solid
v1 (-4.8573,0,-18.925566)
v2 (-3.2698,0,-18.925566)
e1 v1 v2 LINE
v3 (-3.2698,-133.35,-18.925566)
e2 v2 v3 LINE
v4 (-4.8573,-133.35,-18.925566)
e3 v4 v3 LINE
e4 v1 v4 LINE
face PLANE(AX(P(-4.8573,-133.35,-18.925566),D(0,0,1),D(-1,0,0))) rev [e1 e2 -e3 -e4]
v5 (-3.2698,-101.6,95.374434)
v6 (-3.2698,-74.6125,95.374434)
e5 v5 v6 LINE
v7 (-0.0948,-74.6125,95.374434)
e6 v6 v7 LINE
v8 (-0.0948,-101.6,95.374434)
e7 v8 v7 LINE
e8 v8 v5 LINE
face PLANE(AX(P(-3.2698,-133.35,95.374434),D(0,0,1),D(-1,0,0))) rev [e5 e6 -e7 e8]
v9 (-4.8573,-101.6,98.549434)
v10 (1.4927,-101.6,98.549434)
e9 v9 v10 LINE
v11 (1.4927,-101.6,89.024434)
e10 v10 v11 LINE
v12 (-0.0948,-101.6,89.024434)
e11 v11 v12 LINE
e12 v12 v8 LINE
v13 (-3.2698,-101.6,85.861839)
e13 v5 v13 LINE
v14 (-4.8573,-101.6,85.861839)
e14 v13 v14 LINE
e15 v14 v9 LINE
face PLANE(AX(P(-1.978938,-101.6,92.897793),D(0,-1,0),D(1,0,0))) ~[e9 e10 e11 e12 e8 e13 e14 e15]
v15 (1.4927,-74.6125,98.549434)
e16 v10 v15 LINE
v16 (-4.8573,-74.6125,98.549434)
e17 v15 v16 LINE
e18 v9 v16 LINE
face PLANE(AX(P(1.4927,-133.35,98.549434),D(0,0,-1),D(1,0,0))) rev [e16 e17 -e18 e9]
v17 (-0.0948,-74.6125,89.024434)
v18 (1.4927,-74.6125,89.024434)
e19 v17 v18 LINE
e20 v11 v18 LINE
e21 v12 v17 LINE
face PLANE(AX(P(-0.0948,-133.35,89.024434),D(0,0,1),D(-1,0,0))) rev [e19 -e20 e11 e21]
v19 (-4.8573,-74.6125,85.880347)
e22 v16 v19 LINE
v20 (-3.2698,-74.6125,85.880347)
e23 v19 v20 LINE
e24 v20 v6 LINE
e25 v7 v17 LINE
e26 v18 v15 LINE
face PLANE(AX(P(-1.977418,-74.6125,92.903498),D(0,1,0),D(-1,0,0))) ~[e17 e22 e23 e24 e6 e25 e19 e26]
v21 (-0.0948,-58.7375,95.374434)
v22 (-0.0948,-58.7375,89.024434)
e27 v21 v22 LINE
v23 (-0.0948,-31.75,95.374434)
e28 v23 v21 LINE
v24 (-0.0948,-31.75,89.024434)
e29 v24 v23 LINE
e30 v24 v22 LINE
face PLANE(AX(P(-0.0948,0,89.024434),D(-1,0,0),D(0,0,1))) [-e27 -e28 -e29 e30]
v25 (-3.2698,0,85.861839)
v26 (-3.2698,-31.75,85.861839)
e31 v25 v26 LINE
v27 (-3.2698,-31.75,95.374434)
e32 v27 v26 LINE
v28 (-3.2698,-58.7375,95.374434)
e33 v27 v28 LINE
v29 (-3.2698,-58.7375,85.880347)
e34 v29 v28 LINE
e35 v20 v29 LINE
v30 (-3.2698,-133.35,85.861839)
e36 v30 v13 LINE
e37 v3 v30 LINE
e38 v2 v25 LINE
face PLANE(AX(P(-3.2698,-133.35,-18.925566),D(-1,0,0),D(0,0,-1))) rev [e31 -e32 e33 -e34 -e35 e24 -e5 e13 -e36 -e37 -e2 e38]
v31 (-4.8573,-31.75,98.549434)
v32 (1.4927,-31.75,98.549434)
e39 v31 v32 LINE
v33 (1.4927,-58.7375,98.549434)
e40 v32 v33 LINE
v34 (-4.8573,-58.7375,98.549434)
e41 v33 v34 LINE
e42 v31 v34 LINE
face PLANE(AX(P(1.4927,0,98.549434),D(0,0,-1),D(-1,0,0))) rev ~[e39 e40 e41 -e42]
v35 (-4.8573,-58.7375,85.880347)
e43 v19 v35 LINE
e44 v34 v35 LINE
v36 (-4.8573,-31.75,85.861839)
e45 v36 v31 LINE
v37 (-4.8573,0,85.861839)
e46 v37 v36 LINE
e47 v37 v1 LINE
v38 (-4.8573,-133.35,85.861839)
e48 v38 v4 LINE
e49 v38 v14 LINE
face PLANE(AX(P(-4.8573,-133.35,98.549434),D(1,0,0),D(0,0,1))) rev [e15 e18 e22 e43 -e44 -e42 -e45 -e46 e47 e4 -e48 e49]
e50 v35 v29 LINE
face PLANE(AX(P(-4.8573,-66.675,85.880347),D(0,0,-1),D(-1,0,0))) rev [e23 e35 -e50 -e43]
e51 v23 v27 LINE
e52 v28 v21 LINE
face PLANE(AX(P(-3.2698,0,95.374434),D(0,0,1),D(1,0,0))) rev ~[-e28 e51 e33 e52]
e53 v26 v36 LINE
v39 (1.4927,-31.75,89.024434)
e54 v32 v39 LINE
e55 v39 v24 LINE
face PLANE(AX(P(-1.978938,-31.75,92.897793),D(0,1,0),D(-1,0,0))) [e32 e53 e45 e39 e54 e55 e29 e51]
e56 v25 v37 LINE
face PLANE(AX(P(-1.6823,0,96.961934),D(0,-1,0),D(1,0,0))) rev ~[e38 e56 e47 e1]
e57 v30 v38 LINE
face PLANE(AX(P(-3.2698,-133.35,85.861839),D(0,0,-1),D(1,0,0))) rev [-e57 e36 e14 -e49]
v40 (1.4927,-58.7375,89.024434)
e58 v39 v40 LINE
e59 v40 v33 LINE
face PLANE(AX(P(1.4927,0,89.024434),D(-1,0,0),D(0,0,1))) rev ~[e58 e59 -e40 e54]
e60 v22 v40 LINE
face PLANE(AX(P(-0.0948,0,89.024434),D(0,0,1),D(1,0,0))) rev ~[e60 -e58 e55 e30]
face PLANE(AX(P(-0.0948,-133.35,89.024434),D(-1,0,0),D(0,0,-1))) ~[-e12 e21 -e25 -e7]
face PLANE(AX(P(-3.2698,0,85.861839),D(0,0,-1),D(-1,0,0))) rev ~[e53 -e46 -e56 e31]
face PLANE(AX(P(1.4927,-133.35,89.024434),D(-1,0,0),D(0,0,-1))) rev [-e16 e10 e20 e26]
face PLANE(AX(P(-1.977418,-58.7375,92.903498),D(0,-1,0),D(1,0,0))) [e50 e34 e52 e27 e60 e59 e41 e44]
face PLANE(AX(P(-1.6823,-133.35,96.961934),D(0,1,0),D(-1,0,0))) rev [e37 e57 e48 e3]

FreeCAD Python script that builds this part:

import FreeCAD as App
import Part
import Sketcher

V = App.Vector
Q = App.Units.Quantity


def add_polygon(sketch, points):
    """Adds a closed chain of lines whose ends are joined by coincident constraints."""
    first, n = sketch.GeometryCount, len(points)
    for a, b in zip(points, points[1:] + points[:1]):
        sketch.addGeometry(Part.LineSegment(App.Vector(*a, 0), App.Vector(*b, 0)), False)
    for i in range(n):
        sketch.addConstraint(Sketcher.Constraint("Coincident", first + i, 2, first + (i + 1) % n, 1))

doc = App.newDocument("Part")
params = doc.addObject("Spreadsheet::Sheet", "Params")
for row, (alias, value) in enumerate([
    ("sketch1_height", "4.5 in"),
    ("sketch1_width", "0.25 in"),
    ("sketch1_width2", "0.0625 in"),
    ("sketch1_height2", "4.625 in"),
    ("pad1_length", "2.625 in"),
    ("sketch2_width", "0.25 in"),
    ("sketch2_width2", "0.0625 in"),
    ("sketch2_height", "0.375 in"),
    ("pocket1_length", "0.3125 in"),
    ("sketch3_width", "0.25 in"),
    ("sketch3_width2", "0.0625 in"),
    ("sketch3_height", "0.375 in"),
    ("pocket2_length", "1.25 in"),
], start=1):
    params.set(f"A{row}", alias)
    params.set(f"B{row}", "=" + value)
    params.setAlias(f"B{row}", alias)

body = doc.addObject("PartDesign::Body", "Body")

sketch1 = body.newObject("Sketcher::SketchObject", "Sketch")
sketch1.AttachmentSupport = (doc.getObject("XZ_Plane"), [""])
sketch1.MapMode = "FlatFace"
add_polygon(sketch1, [(-4.9, 98.5), (-4.9, -18.9), (-3.3, -18.9), (-3.3, 95.4), (-0.1, 95.4), (-0.1, 89), (1.5, 89), (1.5, 98.5)])
sketch1.addConstraint(Sketcher.Constraint("Vertical", 0))
sketch1.addConstraint(Sketcher.Constraint("Horizontal", 1))
sketch1.addConstraint(Sketcher.Constraint("Vertical", 2))
sketch1.addConstraint(Sketcher.Constraint("Horizontal", 3))
sketch1.addConstraint(Sketcher.Constraint("Vertical", 4))
sketch1.addConstraint(Sketcher.Constraint("Horizontal", 5))
sketch1.addConstraint(Sketcher.Constraint("Vertical", 6))
sketch1.addConstraint(Sketcher.Constraint("Horizontal", 7))
sketch1.addConstraint(Sketcher.Constraint("Equal", 1, 5))
sketch1.addConstraint(Sketcher.Constraint("Equal", 7, 4))
sketch1.addConstraint(Sketcher.Constraint("DistanceY", 2, 1, 2, 2, Q("4.5 in")))
sketch1.addConstraint(Sketcher.Constraint("DistanceX", 7, 2, 7, 1, Q("0.25 in")))
sketch1.addConstraint(Sketcher.Constraint("DistanceX", 1, 1, 1, 2, Q("0.0625 in")))
sketch1.addConstraint(Sketcher.Constraint("DistanceY", 0, 2, 0, 1, Q("4.625 in")))
sketch1.addConstraint(Sketcher.Constraint("DistanceX", 0, 2, -1, 1, Q("4.8573 mm")))
sketch1.addConstraint(Sketcher.Constraint("DistanceY", 0, 2, -1, 1, Q("18.925566 mm")))
sketch1.setExpression("Constraints[18]", "Params.sketch1_height")
sketch1.setExpression("Constraints[19]", "Params.sketch1_width")
sketch1.setExpression("Constraints[20]", "Params.sketch1_width2")
sketch1.setExpression("Constraints[21]", "Params.sketch1_height2")
pad1 = body.newObject("PartDesign::Pad", "Pad")
pad1.Profile = sketch1
pad1.setExpression("Length", "Params.pad1_length")

sketch2 = body.newObject("Sketcher::SketchObject", "Sketch001")
sketch2.AttachmentSupport = (doc.getObject("XZ_Plane"), [""])
sketch2.MapMode = "FlatFace"
sketch2.AttachmentOffset = App.Placement(V(0, 0, 2.625 * 25.4), App.Rotation())
add_polygon(sketch2, [(-4.9, 98.5), (-4.9, 85.9), (-3.3, 85.9), (-3.3, 95.4), (-0.1, 95.4), (-0.1, 89), (1.5, 89), (1.5, 98.5)])
sketch2.addConstraint(Sketcher.Constraint("Vertical", 0))
sketch2.addConstraint(Sketcher.Constraint("Horizontal", 1))
sketch2.addConstraint(Sketcher.Constraint("Vertical", 2))
sketch2.addConstraint(Sketcher.Constraint("Horizontal", 3))
sketch2.addConstraint(Sketcher.Constraint("Vertical", 4))
sketch2.addConstraint(Sketcher.Constraint("Horizontal", 5))
sketch2.addConstraint(Sketcher.Constraint("Vertical", 6))
sketch2.addConstraint(Sketcher.Constraint("Horizontal", 7))
sketch2.addConstraint(Sketcher.Constraint("Equal", 1, 5))
sketch2.addConstraint(Sketcher.Constraint("Equal", 7, 4))
sketch2.addConstraint(Sketcher.Constraint("DistanceX", 7, 2, 7, 1, Q("0.25 in")))
sketch2.addConstraint(Sketcher.Constraint("DistanceX", 1, 1, 1, 2, Q("0.0625 in")))
sketch2.addConstraint(Sketcher.Constraint("DistanceY", 6, 1, 6, 2, Q("0.375 in")))
sketch2.addConstraint(Sketcher.Constraint("DistanceX", 0, 2, -1, 1, Q("4.8573 mm")))
sketch2.addConstraint(Sketcher.Constraint("DistanceY", 0, 2, 0, 1, Q("12.669088 mm")))
sketch2.addConstraint(Sketcher.Constraint("DistanceY", -1, 1, 0, 2, Q("85.880347 mm")))
sketch2.setExpression("Constraints[18]", "Params.sketch2_width")
sketch2.setExpression("Constraints[19]", "Params.sketch2_width2")
sketch2.setExpression("Constraints[20]", "Params.sketch2_height")
pocket1 = body.newObject("PartDesign::Pocket", "Pocket")
pocket1.Profile = sketch2
pocket1.setExpression("Length", "Params.pocket1_length")

sketch3 = body.newObject("Sketcher::SketchObject", "Sketch002")
sketch3.AttachmentSupport = (doc.getObject("XZ_Plane"), [""])
sketch3.MapMode = "FlatFace"
add_polygon(sketch3, [(-3.3, 85.9), (-4.9, 85.9), (-4.9, 98.5), (1.5, 98.5), (1.5, 89), (-0.1, 89), (-0.1, 95.4), (-3.3, 95.4)])
sketch3.addConstraint(Sketcher.Constraint("Horizontal", 0))
sketch3.addConstraint(Sketcher.Constraint("Vertical", 1))
sketch3.addConstraint(Sketcher.Constraint("Horizontal", 2))
sketch3.addConstraint(Sketcher.Constraint("Vertical", 3))
sketch3.addConstraint(Sketcher.Constraint("Horizontal", 4))
sketch3.addConstraint(Sketcher.Constraint("Vertical", 5))
sketch3.addConstraint(Sketcher.Constraint("Horizontal", 6))
sketch3.addConstraint(Sketcher.Constraint("Vertical", 7))
sketch3.addConstraint(Sketcher.Constraint("Equal", 0, 4))
sketch3.addConstraint(Sketcher.Constraint("Equal", 2, 5))
sketch3.addConstraint(Sketcher.Constraint("DistanceX", 2, 1, 2, 2, Q("0.25 in")))
sketch3.addConstraint(Sketcher.Constraint("DistanceX", 0, 2, 0, 1, Q("0.0625 in")))
sketch3.addConstraint(Sketcher.Constraint("DistanceY", 3, 2, 3, 1, Q("0.375 in")))
sketch3.addConstraint(Sketcher.Constraint("DistanceX", 0, 2, -1, 1, Q("4.8573 mm")))
sketch3.addConstraint(Sketcher.Constraint("DistanceY", 1, 1, 1, 2, Q("12.687595 mm")))
sketch3.addConstraint(Sketcher.Constraint("DistanceY", -1, 1, 0, 2, Q("85.861839 mm")))
sketch3.setExpression("Constraints[18]", "Params.sketch3_width")
sketch3.setExpression("Constraints[19]", "Params.sketch3_width2")
sketch3.setExpression("Constraints[20]", "Params.sketch3_height")
pocket2 = body.newObject("PartDesign::Pocket", "Pocket001")
pocket2.Profile = sketch3
pocket2.setExpression("Length", "Params.pocket2_length")
pocket2.Reversed = True
body2 = doc.addObject("PartDesign::Body", "Body001")
doc.recompute()

body2.BaseFeature = body
doc.recompute()

mirroring = doc.addObject("Part::Mirroring", "Mirroring")
mirroring.Source = body
mirroring.Base = V(-4.06355, -66.675, 33.477391)
mirroring.Normal = V(0, -1, 0)
body3 = doc.addObject("PartDesign::Body", "Body002")
body3.BaseFeature = mirroring
boolean = body2.newObject("PartDesign::Boolean", "Boolean")
boolean.Type = "Fuse"
boolean.addObjects([body3])
doc.recompute()
mirroring.Visibility = False

doc.recompute()
